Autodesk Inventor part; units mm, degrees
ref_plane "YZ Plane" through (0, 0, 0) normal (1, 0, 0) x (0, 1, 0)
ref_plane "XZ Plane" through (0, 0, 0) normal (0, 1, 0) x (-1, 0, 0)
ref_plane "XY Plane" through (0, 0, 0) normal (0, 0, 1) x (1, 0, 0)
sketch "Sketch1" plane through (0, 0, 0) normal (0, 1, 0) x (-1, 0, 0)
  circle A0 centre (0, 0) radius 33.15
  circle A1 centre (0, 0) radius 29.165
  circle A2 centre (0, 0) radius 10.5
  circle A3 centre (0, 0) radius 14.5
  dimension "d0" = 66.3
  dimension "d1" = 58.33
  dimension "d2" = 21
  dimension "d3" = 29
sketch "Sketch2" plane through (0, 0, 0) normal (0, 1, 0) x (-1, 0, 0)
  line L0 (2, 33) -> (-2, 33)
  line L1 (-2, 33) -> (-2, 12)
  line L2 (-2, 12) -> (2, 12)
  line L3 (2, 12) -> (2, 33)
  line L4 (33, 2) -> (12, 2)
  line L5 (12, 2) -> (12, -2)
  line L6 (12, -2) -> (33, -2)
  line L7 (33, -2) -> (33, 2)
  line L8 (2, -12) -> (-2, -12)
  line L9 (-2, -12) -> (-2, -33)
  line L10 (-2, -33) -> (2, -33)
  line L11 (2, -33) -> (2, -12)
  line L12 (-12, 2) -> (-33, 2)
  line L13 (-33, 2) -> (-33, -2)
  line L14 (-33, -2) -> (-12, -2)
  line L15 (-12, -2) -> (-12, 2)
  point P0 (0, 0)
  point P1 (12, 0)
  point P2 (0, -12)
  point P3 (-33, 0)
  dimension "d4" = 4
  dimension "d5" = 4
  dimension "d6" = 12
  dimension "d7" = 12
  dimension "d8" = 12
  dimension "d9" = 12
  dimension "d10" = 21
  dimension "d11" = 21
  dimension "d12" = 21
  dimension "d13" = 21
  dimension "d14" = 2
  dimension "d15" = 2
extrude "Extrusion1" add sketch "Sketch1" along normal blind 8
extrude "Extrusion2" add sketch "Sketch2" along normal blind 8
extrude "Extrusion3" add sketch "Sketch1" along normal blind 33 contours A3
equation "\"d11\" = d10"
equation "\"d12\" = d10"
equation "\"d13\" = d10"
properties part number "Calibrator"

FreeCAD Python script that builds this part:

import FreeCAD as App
import Part
import Sketcher
from FreeCAD import Vector
Q = App.Units.Quantity

doc = App.newDocument("Part")
body = doc.addObject("PartDesign::Body", "Body")
body.AllowCompound = True

sketch1 = doc.addObject("Sketcher::SketchObject", "Sketch")
body.addObject(sketch1)
sketch1.AttachmentSupport = (doc.XZ_Plane, [""])
sketch1.MapMode = "FlatFace"
sketch1.addGeometry([
    Part.Circle(Vector(0, 0, 0), Vector(0, 0, 1), 33),
    Part.Circle(Vector(0, 0, 0), Vector(0, 0, 1), 29),
    Part.Circle(Vector(0, 0, 0), Vector(0, 0, 1), 14),
    Part.Circle(Vector(0, 0, 0), Vector(0, 0, 1), 10),
], False)
sketch1.addConstraint([
    Sketcher.Constraint("Coincident", 0, 3, -1, 1),
    Sketcher.Constraint("Coincident", 1, 3, -1, 1),
    Sketcher.Constraint("Coincident", 2, 3, -1, 1),
    Sketcher.Constraint("Coincident", 3, 3, -1, 1),
    Sketcher.Constraint("Diameter", 2, Q("29 mm")),
    Sketcher.Constraint("Diameter", 3, Q("21 mm")),
    Sketcher.Constraint("Diameter", 0, Q("66.3 mm")),
    Sketcher.Constraint("Diameter", 1, Q("58.33 mm")),
])
pad1 = doc.addObject("PartDesign::Pad", "Pad")
body.addObject(pad1)
pad1.Profile = sketch1
pad1.Length = 8
pad1.Reversed = True

sketch2 = doc.addObject("Sketcher::SketchObject", "Sketch001")
body.addObject(sketch2)
sketch2.AttachmentSupport = (doc.XZ_Plane, [""])
sketch2.MapMode = "FlatFace"
sketch2.addGeometry([
    Part.LineSegment(Vector(-2, 12, 0), Vector(-2, 33, 0)),
    Part.LineSegment(Vector(-2, 33, 0), Vector(2, 33, 0)),
    Part.LineSegment(Vector(2, 33, 0), Vector(2, 12, 0)),
    Part.LineSegment(Vector(2, 12, 0), Vector(-2, 12, 0)),
    Part.LineSegment(Vector(-33, -2, 0), Vector(-33, 2, 0)),
    Part.LineSegment(Vector(-33, 2, 0), Vector(-12, 2, 0)),
    Part.LineSegment(Vector(-12, 2, 0), Vector(-12, -2, 0)),
    Part.LineSegment(Vector(-12, -2, 0), Vector(-33, -2, 0)),
    Part.LineSegment(Vector(-2, -33, 0), Vector(-2, -12, 0)),
    Part.LineSegment(Vector(-2, -12, 0), Vector(2, -12, 0)),
    Part.LineSegment(Vector(2, -12, 0), Vector(2, -33, 0)),
    Part.LineSegment(Vector(2, -33, 0), Vector(-2, -33, 0)),
    Part.LineSegment(Vector(12, -2, 0), Vector(12, 2, 0)),
    Part.LineSegment(Vector(12, 2, 0), Vector(33, 2, 0)),
    Part.LineSegment(Vector(33, 2, 0), Vector(33, -2, 0)),
    Part.LineSegment(Vector(33, -2, 0), Vector(12, -2, 0)),
], False)
sketch2.addConstraint([
    Sketcher.Constraint("Coincident", 0, 2, 1, 1),
    Sketcher.Constraint("Coincident", 1, 2, 2, 1),
    Sketcher.Constraint("Coincident", 2, 2, 3, 1),
    Sketcher.Constraint("Coincident", 3, 2, 0, 1),
    Sketcher.Constraint("Coincident", 4, 2, 5, 1),
    Sketcher.Constraint("Coincident", 5, 2, 6, 1),
    Sketcher.Constraint("Coincident", 6, 2, 7, 1),
    Sketcher.Constraint("Coincident", 7, 2, 4, 1),
    Sketcher.Constraint("Coincident", 8, 2, 9, 1),
    Sketcher.Constraint("Coincident", 9, 2, 10, 1),
    Sketcher.Constraint("Coincident", 10, 2, 11, 1),
    Sketcher.Constraint("Coincident", 11, 2, 8, 1),
    Sketcher.Constraint("Coincident", 12, 2, 13, 1),
    Sketcher.Constraint("Coincident", 13, 2, 14, 1),
    Sketcher.Constraint("Coincident", 14, 2, 15, 1),
    Sketcher.Constraint("Coincident", 15, 2, 12, 1),
    Sketcher.Constraint("Vertical", 0),
    Sketcher.Constraint("Horizontal", 1),
    Sketcher.Constraint("Vertical", 2),
    Sketcher.Constraint("Horizontal", 3),
    Sketcher.Constraint("Vertical", 4),
    Sketcher.Constraint("Horizontal", 5),
    Sketcher.Constraint("Vertical", 6),
    Sketcher.Constraint("Horizontal", 7),
    Sketcher.Constraint("Vertical", 8),
    Sketcher.Constraint("Horizontal", 9),
    Sketcher.Constraint("Vertical", 10),
    Sketcher.Constraint("Horizontal", 11),
    Sketcher.Constraint("Vertical", 12),
    Sketcher.Constraint("Horizontal", 13),
    Sketcher.Constraint("Vertical", 14),
    Sketcher.Constraint("Horizontal", 15),
    Sketcher.Constraint("Symmetric", 2, 2, 8, 2, -1, 1),
    Sketcher.Constraint("Symmetric", 0, 2, 10, 2, -1, 1),
    Sketcher.Constraint("Symmetric", 6, 2, 12, 2, -1, 1),
    Sketcher.Constraint("Symmetric", 4, 2, 14, 2, -1, 1),
    Sketcher.Constraint("Horizontal", 5, 2, 12, 2),
    Sketcher.Constraint("Vertical", 3, 2, 8, 2),
    Sketcher.Constraint("Equal", 15, 0),
    Sketcher.Constraint("Equal", 11, 4),
    Sketcher.Constraint("DistanceX", 1, 1, 1, 2, Q("4 mm")),
    Sketcher.Constraint("DistanceX", 5, 1, 5, 2, Q("21 mm")),
    Sketcher.Constraint("DistanceY", -1, 1, 2, 2, Q("12 mm")),
    Sketcher.Constraint("DistanceX", 5, 2, -1, 1, Q("12 mm")),
])
pad2 = doc.addObject("PartDesign::Pad", "Pad001")
body.addObject(pad2)
pad2.Profile = sketch2
pad2.Length = 8
pad2.Reversed = True

sketch3 = doc.addObject("Sketcher::SketchObject", "Sketch002")
body.addObject(sketch3)
sketch3.AttachmentSupport = (doc.XZ_Plane, [""])
sketch3.MapMode = "FlatFace"
sketch3.addGeometry([
    Part.Circle(Vector(0, 0, 0), Vector(0, 0, 1), 14),
    Part.Circle(Vector(0, 0, 0), Vector(0, 0, 1), 10),
], False)
sketch3.addConstraint([
    Sketcher.Constraint("Coincident", 0, 3, -1, 1),
    Sketcher.Constraint("Coincident", 1, 3, -1, 1),
    Sketcher.Constraint("Diameter", 0, Q("29 mm")),
    Sketcher.Constraint("Diameter", 1, Q("21 mm")),
])
pad3 = doc.addObject("PartDesign::Pad", "Pad002")
body.addObject(pad3)
pad3.Profile = sketch3
pad3.Length = 33
pad3.Reversed = True

doc.recompute()
